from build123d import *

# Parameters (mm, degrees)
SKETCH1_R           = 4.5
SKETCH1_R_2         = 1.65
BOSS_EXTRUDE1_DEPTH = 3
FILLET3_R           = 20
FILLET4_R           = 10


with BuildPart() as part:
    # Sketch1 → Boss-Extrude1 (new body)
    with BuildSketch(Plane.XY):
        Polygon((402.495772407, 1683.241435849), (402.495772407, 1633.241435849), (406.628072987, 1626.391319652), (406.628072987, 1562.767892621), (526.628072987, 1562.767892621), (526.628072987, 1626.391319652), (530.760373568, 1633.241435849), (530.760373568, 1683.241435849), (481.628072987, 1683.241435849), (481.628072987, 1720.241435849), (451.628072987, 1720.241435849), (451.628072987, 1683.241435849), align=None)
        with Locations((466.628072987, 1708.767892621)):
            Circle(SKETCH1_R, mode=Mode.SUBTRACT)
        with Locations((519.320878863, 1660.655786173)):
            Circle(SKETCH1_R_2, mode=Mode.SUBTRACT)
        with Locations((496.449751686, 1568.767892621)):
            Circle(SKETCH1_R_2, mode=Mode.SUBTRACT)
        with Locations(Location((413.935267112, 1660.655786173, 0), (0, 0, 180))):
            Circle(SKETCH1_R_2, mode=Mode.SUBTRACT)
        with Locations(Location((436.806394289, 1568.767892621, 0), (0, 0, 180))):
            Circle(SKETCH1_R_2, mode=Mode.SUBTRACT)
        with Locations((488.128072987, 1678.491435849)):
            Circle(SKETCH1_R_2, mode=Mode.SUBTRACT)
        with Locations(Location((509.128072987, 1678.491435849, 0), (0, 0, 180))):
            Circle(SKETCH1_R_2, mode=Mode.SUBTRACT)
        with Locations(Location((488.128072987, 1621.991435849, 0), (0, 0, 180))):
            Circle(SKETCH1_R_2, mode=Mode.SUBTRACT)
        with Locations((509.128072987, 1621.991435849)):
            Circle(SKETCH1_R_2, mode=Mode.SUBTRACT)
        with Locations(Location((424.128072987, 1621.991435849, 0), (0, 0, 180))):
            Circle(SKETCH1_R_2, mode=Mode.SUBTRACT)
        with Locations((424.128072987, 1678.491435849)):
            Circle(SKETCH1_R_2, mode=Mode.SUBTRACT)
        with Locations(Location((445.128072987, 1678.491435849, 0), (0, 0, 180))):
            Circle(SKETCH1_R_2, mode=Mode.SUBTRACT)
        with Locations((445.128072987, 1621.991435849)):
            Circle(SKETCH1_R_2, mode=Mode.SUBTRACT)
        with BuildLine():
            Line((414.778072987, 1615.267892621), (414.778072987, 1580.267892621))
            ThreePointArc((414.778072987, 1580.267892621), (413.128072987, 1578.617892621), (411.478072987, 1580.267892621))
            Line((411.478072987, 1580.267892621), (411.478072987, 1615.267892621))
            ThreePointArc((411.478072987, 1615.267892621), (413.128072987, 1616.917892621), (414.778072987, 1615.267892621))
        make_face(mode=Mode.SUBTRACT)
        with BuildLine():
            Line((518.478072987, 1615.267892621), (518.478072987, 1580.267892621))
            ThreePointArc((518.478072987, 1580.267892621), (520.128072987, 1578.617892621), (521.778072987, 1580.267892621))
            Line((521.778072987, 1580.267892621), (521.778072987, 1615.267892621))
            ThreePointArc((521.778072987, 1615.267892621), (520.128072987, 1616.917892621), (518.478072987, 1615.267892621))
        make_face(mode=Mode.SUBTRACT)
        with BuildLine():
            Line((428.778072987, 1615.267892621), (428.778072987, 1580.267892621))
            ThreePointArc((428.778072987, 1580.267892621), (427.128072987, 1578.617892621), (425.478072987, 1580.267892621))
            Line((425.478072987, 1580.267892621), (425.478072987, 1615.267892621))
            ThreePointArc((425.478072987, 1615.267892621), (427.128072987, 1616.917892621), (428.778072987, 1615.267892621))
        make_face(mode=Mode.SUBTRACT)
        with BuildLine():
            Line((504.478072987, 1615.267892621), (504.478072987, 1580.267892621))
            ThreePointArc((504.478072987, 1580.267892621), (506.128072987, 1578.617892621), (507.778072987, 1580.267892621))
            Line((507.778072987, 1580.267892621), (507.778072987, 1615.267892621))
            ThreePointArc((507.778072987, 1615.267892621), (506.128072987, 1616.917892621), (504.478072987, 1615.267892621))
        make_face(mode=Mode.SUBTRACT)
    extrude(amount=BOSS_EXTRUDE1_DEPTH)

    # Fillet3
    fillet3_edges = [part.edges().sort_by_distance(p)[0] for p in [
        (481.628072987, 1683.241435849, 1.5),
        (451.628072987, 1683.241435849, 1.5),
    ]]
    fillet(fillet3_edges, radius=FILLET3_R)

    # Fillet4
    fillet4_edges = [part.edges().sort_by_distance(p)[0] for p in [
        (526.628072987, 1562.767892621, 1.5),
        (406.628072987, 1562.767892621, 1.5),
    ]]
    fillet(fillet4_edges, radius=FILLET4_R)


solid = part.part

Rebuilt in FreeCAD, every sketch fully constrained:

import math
import FreeCAD as App
import Part
import Sketcher

V = App.Vector
Q = App.Units.Quantity


def edges_at(feature, points):
    """Names of the edges that pass closest to the given points."""
    edges = feature.Shape.Edges
    near = lambda p: min(range(len(edges)), key=lambda i: edges[i].distToShape(Part.Vertex(*p))[0])
    return sorted({f"Edge{near(p) + 1}" for p in points})

doc = App.newDocument("Part")
body = doc.addObject("PartDesign::Body", "Body")

# Sketch on XY plane
sketch1 = body.newObject("Sketcher::SketchObject", "Sketch")
sketch1.AttachmentSupport = (doc.getObject("XY_Plane"), [""])
sketch1.MapMode = "FlatFace"
sketch1.addGeometry([
    Part.LineSegment(V(402.5, 1683.2, 0), V(402.5, 1633.2, 0)),  # 0
    Part.LineSegment(V(402.5, 1633.2, 0), V(406.6, 1626.4, 0)),  # 1
    Part.LineSegment(V(406.6, 1626.4, 0), V(406.6, 1562.8, 0)),  # 2
    Part.LineSegment(V(406.6, 1562.8, 0), V(526.6, 1562.8, 0)),  # 3
    Part.LineSegment(V(526.6, 1562.8, 0), V(526.6, 1626.4, 0)),  # 4
    Part.LineSegment(V(526.6, 1626.4, 0), V(530.8, 1633.2, 0)),  # 5
    Part.LineSegment(V(530.8, 1633.2, 0), V(530.8, 1683.2, 0)),  # 6
    Part.LineSegment(V(530.8, 1683.2, 0), V(481.6, 1683.2, 0)),  # 7
    Part.LineSegment(V(481.6, 1683.2, 0), V(481.6, 1720.2, 0)),  # 8
    Part.LineSegment(V(481.6, 1720.2, 0), V(451.6, 1720.2, 0)),  # 9
    Part.LineSegment(V(451.6, 1720.2, 0), V(451.6, 1683.2, 0)),  # 10
    Part.LineSegment(V(451.6, 1683.2, 0), V(402.5, 1683.2, 0)),  # 11
    Part.Circle(V(436.8, 1568.8, 0), V(0, 0, 1), 1.6),  # 12
    Part.ArcOfCircle(Part.Circle(V(413.1, 1615.3, 0), V(0, 0, 1), 1.6), math.radians(0), math.radians(180)),  # 13
    Part.LineSegment(V(414.8, 1615.3, 0), V(414.8, 1580.3, 0)),  # 14
    Part.ArcOfCircle(Part.Circle(V(413.1, 1580.3, 0), V(0, 0, 1), 1.6), math.radians(180), math.radians(360)),  # 15
    Part.LineSegment(V(411.5, 1580.3, 0), V(411.5, 1615.3, 0)),  # 16
    Part.ArcOfCircle(Part.Circle(V(427.1, 1615.3, 0), V(0, 0, 1), 1.6), math.radians(0), math.radians(180)),  # 17
    Part.LineSegment(V(428.8, 1615.3, 0), V(428.8, 1580.3, 0)),  # 18
    Part.ArcOfCircle(Part.Circle(V(427.1, 1580.3, 0), V(0, 0, 1), 1.6), math.radians(180), math.radians(360)),  # 19
    Part.LineSegment(V(425.5, 1580.3, 0), V(425.5, 1615.3, 0)),  # 20
    Part.Circle(V(424.1, 1622, 0), V(0, 0, 1), 1.6),  # 21
    Part.Circle(V(445.1, 1622, 0), V(0, 0, 1), 1.6),  # 22
    Part.Circle(V(496.4, 1568.8, 0), V(0, 0, 1), 1.6),  # 23
    Part.LineSegment(V(504.5, 1580.3, 0), V(504.5, 1615.3, 0)),  # 24
    Part.ArcOfCircle(Part.Circle(V(506.1, 1615.3, 0), V(0, 0, 1), 1.6), math.radians(0), math.radians(180)),  # 25
    Part.LineSegment(V(507.8, 1615.3, 0), V(507.8, 1580.3, 0)),  # 26
    Part.ArcOfCircle(Part.Circle(V(506.1, 1580.3, 0), V(0, 0, 1), 1.6), math.radians(180), math.radians(360)),  # 27
    Part.LineSegment(V(518.5, 1580.3, 0), V(518.5, 1615.3, 0)),  # 28
    Part.ArcOfCircle(Part.Circle(V(520.1, 1615.3, 0), V(0, 0, 1), 1.6), math.radians(0), math.radians(180)),  # 29
    Part.LineSegment(V(521.8, 1615.3, 0), V(521.8, 1580.3, 0)),  # 30
    Part.ArcOfCircle(Part.Circle(V(520.1, 1580.3, 0), V(0, 0, 1), 1.6), math.radians(180), math.radians(360)),  # 31
    Part.Circle(V(488.1, 1622, 0), V(0, 0, 1), 1.6),  # 32
    Part.Circle(V(509.1, 1622, 0), V(0, 0, 1), 1.6),  # 33
    Part.Circle(V(413.9, 1660.7, 0), V(0, 0, 1), 1.6),  # 34
    Part.Circle(V(424.1, 1678.5, 0), V(0, 0, 1), 1.6),  # 35
    Part.Circle(V(445.1, 1678.5, 0), V(0, 0, 1), 1.6),  # 36
    Part.Circle(V(519.3, 1660.7, 0), V(0, 0, 1), 1.6),  # 37
    Part.Circle(V(488.1, 1678.5, 0), V(0, 0, 1), 1.6),  # 38
    Part.Circle(V(466.6, 1708.8, 0), V(0, 0, 1), 4.5),  # 39
    Part.Circle(V(509.1, 1678.5, 0), V(0, 0, 1), 1.6),  # 40
], False)
sketch1.addConstraint([
    Sketcher.Constraint("Coincident", 0, 2, 1, 1),
    Sketcher.Constraint("Coincident", 1, 2, 2, 1),
    Sketcher.Constraint("Coincident", 2, 2, 3, 1),
    Sketcher.Constraint("Coincident", 3, 2, 4, 1),
    Sketcher.Constraint("Coincident", 4, 2, 5, 1),
    Sketcher.Constraint("Coincident", 5, 2, 6, 1),
    Sketcher.Constraint("Coincident", 6, 2, 7, 1),
    Sketcher.Constraint("Coincident", 7, 2, 8, 1),
    Sketcher.Constraint("Coincident", 8, 2, 9, 1),
    Sketcher.Constraint("Coincident", 9, 2, 10, 1),
    Sketcher.Constraint("Coincident", 10, 2, 11, 1),
    Sketcher.Constraint("Coincident", 11, 2, 0, 1),
    Sketcher.Constraint("Tangent", 13, 1, 14, 1),
    Sketcher.Constraint("Tangent", 14, 2, 15, 2),
    Sketcher.Constraint("Tangent", 15, 1, 16, 1),
    Sketcher.Constraint("Tangent", 16, 2, 13, 2),
    Sketcher.Constraint("Tangent", 17, 1, 18, 1),
    Sketcher.Constraint("Tangent", 18, 2, 19, 2),
    Sketcher.Constraint("Tangent", 19, 1, 20, 1),
    Sketcher.Constraint("Tangent", 20, 2, 17, 2),
    Sketcher.Constraint("Tangent", 24, 2, 25, 2),
    Sketcher.Constraint("Tangent", 25, 1, 26, 1),
    Sketcher.Constraint("Tangent", 26, 2, 27, 2),
    Sketcher.Constraint("Tangent", 27, 1, 24, 1),
    Sketcher.Constraint("Tangent", 28, 2, 29, 2),
    Sketcher.Constraint("Tangent", 29, 1, 30, 1),
    Sketcher.Constraint("Tangent", 30, 2, 31, 2),
    Sketcher.Constraint("Tangent", 31, 1, 28, 1),
    Sketcher.Constraint("Vertical", 0),
    Sketcher.Constraint("Vertical", 2),
    Sketcher.Constraint("Horizontal", 3),
    Sketcher.Constraint("Vertical", 4),
    Sketcher.Constraint("Vertical", 6),
    Sketcher.Constraint("Horizontal", 7),
    Sketcher.Constraint("Vertical", 8),
    Sketcher.Constraint("Horizontal", 9),
    Sketcher.Constraint("Vertical", 10),
    Sketcher.Constraint("Horizontal", 11),
    Sketcher.Constraint("Vertical", 14),
    Sketcher.Constraint("Vertical", 16),
    Sketcher.Constraint("Vertical", 18),
    Sketcher.Constraint("Vertical", 20),
    Sketcher.Constraint("Vertical", 24),
    Sketcher.Constraint("Vertical", 26),
    Sketcher.Constraint("Vertical", 28),
    Sketcher.Constraint("Vertical", 30),
    Sketcher.Constraint("Equal", 12, 13),
    Sketcher.Constraint("Equal", 15, 17),
    Sketcher.Constraint("Equal", 19, 21),
    Sketcher.Constraint("Equal", 21, 22),
    Sketcher.Constraint("Equal", 22, 23),
    Sketcher.Constraint("Equal", 23, 25),
    Sketcher.Constraint("Equal", 27, 29),
    Sketcher.Constraint("Equal", 31, 32),
    Sketcher.Constraint("Equal", 32, 33),
    Sketcher.Constraint("Equal", 33, 34),
    Sketcher.Constraint("Equal", 34, 35),
    Sketcher.Constraint("Equal", 35, 36),
    Sketcher.Constraint("Equal", 36, 37),
    Sketcher.Constraint("Equal", 37, 38),
    Sketcher.Constraint("Equal", 38, 40),
    Sketcher.Constraint("Horizontal", 13, 3, 17, 3),
    Sketcher.Constraint("Horizontal", 15, 3, 19, 3),
    Sketcher.Constraint("Horizontal", 21, 3, 22, 3),
    Sketcher.Constraint("Horizontal", 12, 3, 23, 3),
    Sketcher.Constraint("Horizontal", 17, 3, 25, 3),
    Sketcher.Constraint("Horizontal", 19, 3, 27, 3),
    Sketcher.Constraint("Horizontal", 25, 3, 29, 3),
    Sketcher.Constraint("Horizontal", 27, 3, 31, 3),
    Sketcher.Constraint("Horizontal", 22, 3, 32, 3),
    Sketcher.Constraint("Horizontal", 32, 3, 33, 3),
    Sketcher.Constraint("Horizontal", 35, 3, 36, 3),
    Sketcher.Constraint("Horizontal", 34, 3, 37, 3),
    Sketcher.Constraint("Horizontal", 36, 3, 38, 3),
    Sketcher.Constraint("Horizontal", 38, 3, 40, 3),
    Sketcher.Constraint("Horizontal", 1, 2, 4, 2),
    Sketcher.Constraint("Horizontal", 0, 2, 5, 2),
    Sketcher.Constraint("Horizontal", 7, 2, 10, 2),
    Sketcher.Constraint("Vertical", 21, 3, 35, 3),
    Sketcher.Constraint("Vertical", 22, 3, 36, 3),
    Sketcher.Constraint("Vertical", 32, 3, 38, 3),
    Sketcher.Constraint("Vertical", 33, 3, 40, 3),
    Sketcher.Constraint("Equal", 7, 11),
    Sketcher.Constraint("Equal", 1, 5),
    Sketcher.Constraint("Diameter", 39, Q("9 mm")),
    Sketcher.Constraint("Diameter", 12, Q("3.3 mm")),
    Sketcher.Constraint("DistanceX", 3, 1, 3, 2, Q("120 mm")),
    Sketcher.Constraint("DistanceX", 9, 2, 9, 1, Q("30 mm")),
    Sketcher.Constraint("DistanceY", 0, 2, 0, 1, Q("50 mm")),
    Sketcher.Constraint("DistanceY", 8, 1, 8, 2, Q("37 mm")),
    Sketcher.Constraint("DistanceY", 14, 2, 14, 1, Q("35 mm")),
    Sketcher.Constraint("Distance", 1, Q("8 mm")),
    Sketcher.Constraint("DistanceX", 13, 3, 17, 3, Q("14 mm")),
    Sketcher.Constraint("DistanceX", 21, 3, 17, 3, Q("3 mm")),
    Sketcher.Constraint("DistanceX", 17, 3, 22, 3, Q("18 mm")),
    Sketcher.Constraint("DistanceX", 22, 3, 25, 3, Q("61 mm")),
    Sketcher.Constraint("DistanceX", 25, 3, 29, 3, Q("14 mm")),
    Sketcher.Constraint("DistanceX", 32, 3, 25, 3, Q("18 mm")),
    Sketcher.Constraint("DistanceX", 25, 3, 33, 3, Q("3 mm")),
    Sketcher.Constraint("DistanceY", 2, 2, 12, 3, Q("6 mm")),
    Sketcher.Constraint("DistanceX", 39, 3, 7, 2, Q("15 mm")),
    Sketcher.Constraint("DistanceY", 12, 3, 13, 3, Q("46.5 mm")),
    Sketcher.Constraint("DistanceY", 21, 3, 35, 3, Q("56.5 mm")),
    Sketcher.Constraint("DistanceX", 36, 3, 39, 3, Q("21.5 mm")),
    Sketcher.Constraint("DistanceY", 21, 3, 0, 2, Q("11.25 mm")),
    Sketcher.Constraint("DistanceX", 7, 2, 7, 1, Q("49.132301 mm")),
    Sketcher.Constraint("DistanceY", 2, 2, 2, 1, Q("63.623427 mm")),
    Sketcher.Constraint("DistanceX", -1, 1, 23, 3, Q("496.449752 mm")),
    Sketcher.Constraint("DistanceX", -1, 1, 37, 3, Q("519.320879 mm")),
    Sketcher.Constraint("DistanceY", -1, 1, 1, 2, Q("1626.39132 mm")),
    Sketcher.Constraint("DistanceX", 13, 3, 12, 3, Q("23.678321 mm")),
    Sketcher.Constraint("DistanceX", 19, 3, 23, 3, Q("69.321679 mm")),
    Sketcher.Constraint("DistanceY", 21, 3, 34, 3, Q("38.66435 mm")),
    Sketcher.Constraint("DistanceX", -1, 1, 34, 3, Q("413.935267 mm")),
    Sketcher.Constraint("DistanceY", -1, 1, 39, 3, Q("1708.767893 mm")),
])
pad1 = body.newObject("PartDesign::Pad", "Pad")
pad1.Profile = sketch1
pad1.Length = 3
doc.recompute()

fillet = body.newObject("PartDesign::Fillet", "Fillet")
fillet.Base = (pad1, edges_at(pad1, [(481.628, 1683.241, 1.5), (451.628, 1683.241, 1.5)]))
fillet.Radius = 20
doc.recompute()

fillet2 = body.newObject("PartDesign::Fillet", "Fillet001")
fillet2.Base = (fillet, edges_at(fillet, [(526.628, 1562.768, 1.5), (406.628, 1562.768, 1.5)]))
fillet2.Radius = 10

doc.recompute()
